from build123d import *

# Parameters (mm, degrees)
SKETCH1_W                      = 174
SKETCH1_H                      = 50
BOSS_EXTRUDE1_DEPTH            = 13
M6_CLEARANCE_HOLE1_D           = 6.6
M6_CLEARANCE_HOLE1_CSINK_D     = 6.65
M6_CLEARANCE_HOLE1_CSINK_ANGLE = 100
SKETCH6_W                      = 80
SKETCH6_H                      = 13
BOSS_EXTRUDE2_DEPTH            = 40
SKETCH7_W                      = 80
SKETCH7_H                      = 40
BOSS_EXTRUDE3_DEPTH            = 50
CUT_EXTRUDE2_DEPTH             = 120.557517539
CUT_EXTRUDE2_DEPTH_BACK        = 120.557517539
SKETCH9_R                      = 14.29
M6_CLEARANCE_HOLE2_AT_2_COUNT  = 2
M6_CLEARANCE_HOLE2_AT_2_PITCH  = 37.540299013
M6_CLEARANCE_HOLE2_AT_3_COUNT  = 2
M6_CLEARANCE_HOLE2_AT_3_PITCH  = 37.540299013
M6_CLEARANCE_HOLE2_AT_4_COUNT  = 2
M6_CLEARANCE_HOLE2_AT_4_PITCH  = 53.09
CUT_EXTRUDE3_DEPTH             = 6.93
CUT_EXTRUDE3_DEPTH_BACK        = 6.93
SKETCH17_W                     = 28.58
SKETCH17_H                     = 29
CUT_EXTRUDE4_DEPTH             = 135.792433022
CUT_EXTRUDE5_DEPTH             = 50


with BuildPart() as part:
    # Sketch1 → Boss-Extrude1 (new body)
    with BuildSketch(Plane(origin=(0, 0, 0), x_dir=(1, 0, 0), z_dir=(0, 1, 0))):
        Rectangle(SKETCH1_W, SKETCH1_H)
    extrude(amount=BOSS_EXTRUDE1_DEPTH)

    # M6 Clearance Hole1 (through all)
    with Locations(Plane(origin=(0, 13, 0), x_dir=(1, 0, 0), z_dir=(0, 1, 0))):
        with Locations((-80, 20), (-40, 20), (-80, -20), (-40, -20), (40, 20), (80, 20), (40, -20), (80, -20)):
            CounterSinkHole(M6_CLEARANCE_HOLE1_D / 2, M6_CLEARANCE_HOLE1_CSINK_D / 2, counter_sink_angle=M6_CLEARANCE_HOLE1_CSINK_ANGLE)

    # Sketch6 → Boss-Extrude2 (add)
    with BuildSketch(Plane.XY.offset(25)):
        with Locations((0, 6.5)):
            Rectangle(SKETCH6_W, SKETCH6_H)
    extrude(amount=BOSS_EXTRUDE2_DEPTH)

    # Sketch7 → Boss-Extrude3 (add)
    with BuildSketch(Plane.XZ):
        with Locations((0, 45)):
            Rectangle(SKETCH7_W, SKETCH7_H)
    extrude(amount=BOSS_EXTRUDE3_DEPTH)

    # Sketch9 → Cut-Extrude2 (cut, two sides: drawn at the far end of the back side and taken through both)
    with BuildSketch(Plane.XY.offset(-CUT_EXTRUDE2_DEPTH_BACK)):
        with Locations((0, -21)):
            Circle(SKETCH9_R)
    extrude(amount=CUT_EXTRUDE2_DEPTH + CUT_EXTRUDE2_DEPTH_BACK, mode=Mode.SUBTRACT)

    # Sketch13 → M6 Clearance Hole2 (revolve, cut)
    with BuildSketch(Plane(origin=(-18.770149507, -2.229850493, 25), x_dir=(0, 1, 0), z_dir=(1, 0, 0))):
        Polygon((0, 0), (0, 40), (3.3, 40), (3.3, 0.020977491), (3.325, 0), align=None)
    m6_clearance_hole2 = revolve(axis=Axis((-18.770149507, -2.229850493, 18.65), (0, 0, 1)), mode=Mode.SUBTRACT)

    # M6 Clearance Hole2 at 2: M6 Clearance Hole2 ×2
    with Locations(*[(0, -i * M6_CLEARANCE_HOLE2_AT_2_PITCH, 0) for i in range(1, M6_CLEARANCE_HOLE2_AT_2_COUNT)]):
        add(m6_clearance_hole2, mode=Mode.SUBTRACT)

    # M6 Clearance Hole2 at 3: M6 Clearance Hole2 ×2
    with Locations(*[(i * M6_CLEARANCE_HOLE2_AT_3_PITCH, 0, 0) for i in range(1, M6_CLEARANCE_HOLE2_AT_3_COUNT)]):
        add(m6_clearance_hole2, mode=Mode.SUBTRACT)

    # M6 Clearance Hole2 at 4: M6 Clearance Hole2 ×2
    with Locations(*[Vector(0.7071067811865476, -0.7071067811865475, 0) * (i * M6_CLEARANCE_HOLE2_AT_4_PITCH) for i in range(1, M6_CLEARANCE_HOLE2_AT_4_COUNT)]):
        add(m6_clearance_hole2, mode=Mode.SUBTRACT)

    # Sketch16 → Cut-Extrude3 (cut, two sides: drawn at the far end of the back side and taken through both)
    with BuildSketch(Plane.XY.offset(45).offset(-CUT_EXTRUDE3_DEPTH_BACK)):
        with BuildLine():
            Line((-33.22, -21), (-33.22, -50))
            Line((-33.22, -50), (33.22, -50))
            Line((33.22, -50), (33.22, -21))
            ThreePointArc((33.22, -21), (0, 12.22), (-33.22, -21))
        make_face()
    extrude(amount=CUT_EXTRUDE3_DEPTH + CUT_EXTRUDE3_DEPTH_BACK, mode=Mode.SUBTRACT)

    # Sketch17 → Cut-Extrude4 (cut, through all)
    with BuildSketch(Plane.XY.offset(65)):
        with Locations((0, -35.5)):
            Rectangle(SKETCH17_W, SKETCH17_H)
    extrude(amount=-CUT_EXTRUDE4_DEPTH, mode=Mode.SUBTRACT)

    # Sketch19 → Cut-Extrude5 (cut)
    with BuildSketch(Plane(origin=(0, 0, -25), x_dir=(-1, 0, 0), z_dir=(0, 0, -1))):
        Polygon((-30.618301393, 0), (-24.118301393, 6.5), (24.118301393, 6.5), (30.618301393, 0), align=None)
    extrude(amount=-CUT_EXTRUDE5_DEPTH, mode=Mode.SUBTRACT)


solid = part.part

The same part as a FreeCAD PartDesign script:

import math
import FreeCAD as App
import Part
import Sketcher
from FreeCAD import Vector
Q = App.Units.Quantity


def add_polygon(sketch, points):
    """Adds a closed chain of lines whose ends are joined by coincident constraints."""
    first, n = sketch.GeometryCount, len(points)
    for a, b in zip(points, points[1:] + points[:1]):
        sketch.addGeometry(Part.LineSegment(App.Vector(*a, 0), App.Vector(*b, 0)), False)
    for i in range(n):
        sketch.addConstraint(Sketcher.Constraint("Coincident", first + i, 2, first + (i + 1) % n, 1))

doc = App.newDocument("Part")
body = doc.addObject("PartDesign::Body", "Body")

# Sketch on XZ plane
sketch1 = body.newObject("Sketcher::SketchObject", "Sketch")
sketch1.AttachmentSupport = (doc.getObject("XZ_Plane"), [""])
sketch1.MapMode = "FlatFace"
add_polygon(sketch1, [(-87, -25), (-87, 25), (87, 25), (87, -25)])  # lines 0-3
sketch1.addConstraint([
    Sketcher.Constraint("Vertical", 0),
    Sketcher.Constraint("Horizontal", 1),
    Sketcher.Constraint("Vertical", 2),
    Sketcher.Constraint("Horizontal", 3),
    Sketcher.Constraint("Symmetric", 0, 2, 2, 2, -1, 1),
    Sketcher.Constraint("DistanceX", 1, 1, 1, 2, Q("174 mm")),
    Sketcher.Constraint("DistanceY", 0, 1, 0, 2, Q("50 mm")),
])
pad1 = body.newObject("PartDesign::Pad", "Pad")
pad1.Profile = sketch1
pad1.Length = 13
pad1.Reversed = True

# Sketch on XZ plane
sketch2 = body.newObject("Sketcher::SketchObject", "Sketch001")
sketch2.AttachmentSupport = (doc.getObject("XZ_Plane"), [""])
sketch2.MapMode = "FlatFace"
sketch2.AttachmentOffset = App.Placement(Vector(0, 0, -13), App.Rotation())
sketch2.addGeometry([
    Part.Circle(Vector(-80, -20, 0), Vector(0, 0, 1), 3.3),  # 0
    Part.Circle(Vector(-40, -20, 0), Vector(0, 0, 1), 3.3),  # 1
    Part.Circle(Vector(-80, 20, 0), Vector(0, 0, 1), 3.3),  # 2
    Part.Circle(Vector(-40, 20, 0), Vector(0, 0, 1), 3.3),  # 3
    Part.Circle(Vector(40, -20, 0), Vector(0, 0, 1), 3.3),  # 4
    Part.Circle(Vector(80, -20, 0), Vector(0, 0, 1), 3.3),  # 5
    Part.Circle(Vector(40, 20, 0), Vector(0, 0, 1), 3.3),  # 6
    Part.Circle(Vector(80, 20, 0), Vector(0, 0, 1), 3.3),  # 7
], False)
sketch2.addConstraint([
    Sketcher.Constraint("Equal", 0, 1),
    Sketcher.Constraint("Equal", 1, 2),
    Sketcher.Constraint("Equal", 2, 3),
    Sketcher.Constraint("Equal", 3, 4),
    Sketcher.Constraint("Equal", 4, 5),
    Sketcher.Constraint("Equal", 5, 6),
    Sketcher.Constraint("Equal", 6, 7),
    Sketcher.Constraint("Symmetric", 3, 3, 4, 3, -1, 1),
    Sketcher.Constraint("Symmetric", 2, 3, 5, 3, -1, 1),
    Sketcher.Constraint("Symmetric", 1, 3, 6, 3, -1, 1),
    Sketcher.Constraint("Symmetric", 0, 3, 7, 3, -1, 1),
    Sketcher.Constraint("Symmetric", 1, 3, 4, 3, -2),
    Sketcher.Constraint("Symmetric", 0, 3, 5, 3, -2),
    Sketcher.Constraint("Horizontal", 0, 3, 1, 3),
    Sketcher.Constraint("Diameter", 0, Q("6.6 mm")),
    Sketcher.Constraint("DistanceX", 0, 3, -1, 1, Q("80 mm")),
    Sketcher.Constraint("DistanceY", 0, 3, -1, 1, Q("20 mm")),
    Sketcher.Constraint("DistanceX", 1, 3, -1, 1, Q("40 mm")),
])
doc.recompute()
hole = body.newObject("PartDesign::Hole", "Hole")
hole.Profile = sketch2
hole.ThreadType = "None"
hole.Diameter = 6.6
hole.DepthType = "ThroughAll"
hole.HoleCutType = "Countersink"
hole.HoleCutDiameter = 6.65
hole.HoleCutCountersinkAngle = 100
hole.Reversed = True

# Sketch on XY plane
sketch3 = body.newObject("Sketcher::SketchObject", "Sketch002")
sketch3.AttachmentSupport = (doc.getObject("XY_Plane"), [""])
sketch3.MapMode = "FlatFace"
sketch3.AttachmentOffset = App.Placement(Vector(0, 0, 25), App.Rotation())
add_polygon(sketch3, [(-40, 13), (-40, 0), (40, 0), (40, 13)])  # lines 0-3
sketch3.addConstraint([
    Sketcher.Constraint("Vertical", 0),
    Sketcher.Constraint("Horizontal", 1),
    Sketcher.Constraint("Vertical", 2),
    Sketcher.Constraint("Horizontal", 3),
    Sketcher.Constraint("Symmetric", 0, 2, 1, 2, -1, 1),
    Sketcher.Constraint("DistanceX", 1, 1, 1, 2, Q("80 mm")),
    Sketcher.Constraint("DistanceY", 0, 2, 0, 1, Q("13 mm")),
])
pad2 = body.newObject("PartDesign::Pad", "Pad001")
pad2.Profile = sketch3
pad2.Length = 40

# Sketch on XZ plane
sketch4 = body.newObject("Sketcher::SketchObject", "Sketch003")
sketch4.AttachmentSupport = (doc.getObject("XZ_Plane"), [""])
sketch4.MapMode = "FlatFace"
add_polygon(sketch4, [(-40, 65), (-40, 25), (40, 25), (40, 65)])  # lines 0-3
sketch4.addConstraint([
    Sketcher.Constraint("Vertical", 0),
    Sketcher.Constraint("Horizontal", 1),
    Sketcher.Constraint("Vertical", 2),
    Sketcher.Constraint("Horizontal", 3),
    Sketcher.Constraint("DistanceX", 1, 1, 1, 2, Q("80 mm")),
    Sketcher.Constraint("DistanceY", 0, 2, 0, 1, Q("40 mm")),
    Sketcher.Constraint("DistanceX", 0, 2, -1, 1, Q("40 mm")),
    Sketcher.Constraint("DistanceY", -1, 1, 0, 2, Q("25 mm")),
])
pad3 = body.newObject("PartDesign::Pad", "Pad002")
pad3.Profile = sketch4
pad3.Length = 50

# Sketch on XY plane
sketch5 = body.newObject("Sketcher::SketchObject", "Sketch004")
sketch5.AttachmentSupport = (doc.getObject("XY_Plane"), [""])
sketch5.MapMode = "FlatFace"
sketch5.addGeometry(Part.Circle(Vector(0, -21, 0), Vector(0, 0, 1), 14), False)
sketch5.addConstraint([
    Sketcher.Constraint("PointOnObject", 0, 3, -2),
    Sketcher.Constraint("Diameter", 0, Q("28.58 mm")),
    Sketcher.Constraint("DistanceY", 0, 3, -1, 1, Q("21 mm")),
])
pocket1 = body.newObject("PartDesign::Pocket", "Pocket")
pocket1.Profile = sketch5
pocket1.Type = "ThroughAll"
pocket1.Midplane = True

# Sketch on YZ plane
sketch6 = body.newObject("Sketcher::SketchObject", "Sketch005")
sketch6.AttachmentSupport = (doc.getObject("YZ_Plane"), [""])
sketch6.MapMode = "FlatFace"
sketch6.AttachmentOffset = App.Placement(Vector(0, 0, -18.77015), App.Rotation())
add_polygon(sketch6, [(-2.23, 65), (-2.23, 25), (1.095, 25), (1.07, 25.021), (1.07, 65)])  # lines 0-4
sketch6.addGeometry(Part.LineSegment(Vector(-2.23, 25, 0), Vector(-2.23, 65, 0)), True)  # axis
sketch6.addConstraint([
    Sketcher.Constraint("Vertical", 0),
    Sketcher.Constraint("Horizontal", 1),
    Sketcher.Constraint("Vertical", 3),
    Sketcher.Constraint("Horizontal", 4),
    Sketcher.Constraint("Vertical", 5),
    Sketcher.Constraint("Coincident", 5, 1, 0, 2),
    Sketcher.Constraint("Horizontal", 3, 2, 5, 2),
    Sketcher.Constraint("DistanceY", 0, 2, 0, 1, Q("40 mm")),
    Sketcher.Constraint("Angle", 2, Q("140 deg")),
    Sketcher.Constraint("DistanceX", 4, 2, 4, 1, Q("3.3 mm")),
    Sketcher.Constraint("DistanceY", -1, 1, 0, 2, Q("25 mm")),
    Sketcher.Constraint("DistanceX", 1, 1, 1, 2, Q("3.325 mm")),
    Sketcher.Constraint("DistanceX", 0, 2, -1, 1, Q("2.22985 mm")),
])
groove = body.newObject("PartDesign::Groove", "Groove")
groove.Profile = sketch6
groove.ReferenceAxis = (sketch6, ["Axis0"])
groove.Angle = 360
doc.recompute()

linearpattern = body.newObject("PartDesign::LinearPattern", "LinearPattern")
linearpattern.Originals = [groove]
linearpattern.Direction = (doc.getObject("Y_Axis"), [""])
linearpattern.Mode = "offset"
linearpattern.Offset = 37.540299
linearpattern.Occurrences = 2
linearpattern.Reversed = True
body.Tip = linearpattern
doc.recompute()

linearpattern2 = body.newObject("PartDesign::LinearPattern", "LinearPattern001")
linearpattern2.Originals = [groove]
linearpattern2.Direction = (doc.getObject("X_Axis"), [""])
linearpattern2.Mode = "offset"
linearpattern2.Offset = 37.540299
linearpattern2.Occurrences = 2
body.Tip = linearpattern2
doc.recompute()

datumline = body.newObject("PartDesign::Line", "DatumLine")
datumline.Placement = App.Placement(Vector(0, 0, 0), App.Rotation(Vector(0, 0, 1), Vector(0.707106781, -0.707106781, 0)))
linearpattern3 = body.newObject("PartDesign::LinearPattern", "LinearPattern002")
linearpattern3.Originals = [groove]
linearpattern3.Direction = (datumline, [""])
linearpattern3.Mode = "offset"
linearpattern3.Offset = 53.09
linearpattern3.Occurrences = 2
body.Tip = linearpattern3

# Sketch on XY plane
sketch7 = body.newObject("Sketcher::SketchObject", "Sketch006")
sketch7.AttachmentSupport = (doc.getObject("XY_Plane"), [""])
sketch7.MapMode = "FlatFace"
sketch7.AttachmentOffset = App.Placement(Vector(0, 0, 45), App.Rotation())
sketch7.addGeometry([
    Part.LineSegment(Vector(-33, -21, 0), Vector(-33, -50, 0)),
    Part.LineSegment(Vector(-33, -50, 0), Vector(33, -50, 0)),
    Part.LineSegment(Vector(33, -50, 0), Vector(33, -21, 0)),
    Part.ArcOfCircle(Part.Circle(Vector(0, -21, 0), Vector(0, 0, 1), 33), math.radians(0), math.radians(180)),
], False)
sketch7.addConstraint([
    Sketcher.Constraint("Coincident", 0, 2, 1, 1),
    Sketcher.Constraint("Coincident", 1, 2, 2, 1),
    Sketcher.Constraint("Tangent", 2, 2, 3, 1),
    Sketcher.Constraint("Tangent", 3, 2, 0, 1),
    Sketcher.Constraint("Vertical", 0),
    Sketcher.Constraint("Horizontal", 1),
    Sketcher.Constraint("Vertical", 2),
    Sketcher.Constraint("PointOnObject", 3, 3, -2),
    Sketcher.Constraint("DistanceY", 0, 2, 0, 1, Q("29 mm")),
    Sketcher.Constraint("Radius", 3, Q("33.22 mm")),
    Sketcher.Constraint("DistanceY", 3, 3, -1, 1, Q("21 mm")),
])
pocket2 = body.newObject("PartDesign::Pocket", "Pocket001")
pocket2.Profile = sketch7
pocket2.Type = "TwoLengths"
pocket2.Length = 6.93
pocket2.Length2 = 6.93
pocket2.Reversed = True

# Sketch on XY plane
sketch8 = body.newObject("Sketcher::SketchObject", "Sketch007")
sketch8.AttachmentSupport = (doc.getObject("XY_Plane"), [""])
sketch8.MapMode = "FlatFace"
sketch8.AttachmentOffset = App.Placement(Vector(0, 0, 65), App.Rotation())
add_polygon(sketch8, [(-14, -21), (-14, -50), (14, -50), (14, -21)])  # lines 0-3
sketch8.addConstraint([
    Sketcher.Constraint("Vertical", 0),
    Sketcher.Constraint("Horizontal", 1),
    Sketcher.Constraint("Vertical", 2),
    Sketcher.Constraint("Horizontal", 3),
    Sketcher.Constraint("DistanceY", 0, 2, 0, 1, Q("29 mm")),
    Sketcher.Constraint("DistanceY", 0, 2, -1, 1, Q("50 mm")),
    Sketcher.Constraint("DistanceX", 1, 1, 1, 2, Q("28.58 mm")),
    Sketcher.Constraint("DistanceX", 0, 2, -1, 1, Q("14.29 mm")),
])
pocket3 = body.newObject("PartDesign::Pocket", "Pocket002")
pocket3.Profile = sketch8
pocket3.Type = "ThroughAll"

# Sketch on XY plane
sketch9 = body.newObject("Sketcher::SketchObject", "Sketch008")
sketch9.AttachmentSupport = (doc.getObject("XY_Plane"), [""])
sketch9.MapMode = "FlatFace"
sketch9.AttachmentOffset = App.Placement(Vector(0, 0, -25), App.Rotation())
add_polygon(sketch9, [(24, 6), (31, 0), (-31, 0), (-24, 6)])  # lines 0-3
sketch9.addConstraint([
    Sketcher.Constraint("Horizontal", 1),
    Sketcher.Constraint("Horizontal", 3),
    Sketcher.Constraint("Symmetric", 0, 2, 1, 2, -1, 1),
    Sketcher.Constraint("Perpendicular", 0, 2),
    Sketcher.Constraint("Equal", 0, 2),
    Sketcher.Constraint("DistanceY", -1, 1, 2, 2, Q("6.5 mm")),
    Sketcher.Constraint("DistanceX", -1, 1, 0, 2, Q("30.618301 mm")),
])
pocket4 = body.newObject("PartDesign::Pocket", "Pocket003")
pocket4.Profile = sketch9
pocket4.Length = 50
pocket4.Reversed = True

doc.recompute()
